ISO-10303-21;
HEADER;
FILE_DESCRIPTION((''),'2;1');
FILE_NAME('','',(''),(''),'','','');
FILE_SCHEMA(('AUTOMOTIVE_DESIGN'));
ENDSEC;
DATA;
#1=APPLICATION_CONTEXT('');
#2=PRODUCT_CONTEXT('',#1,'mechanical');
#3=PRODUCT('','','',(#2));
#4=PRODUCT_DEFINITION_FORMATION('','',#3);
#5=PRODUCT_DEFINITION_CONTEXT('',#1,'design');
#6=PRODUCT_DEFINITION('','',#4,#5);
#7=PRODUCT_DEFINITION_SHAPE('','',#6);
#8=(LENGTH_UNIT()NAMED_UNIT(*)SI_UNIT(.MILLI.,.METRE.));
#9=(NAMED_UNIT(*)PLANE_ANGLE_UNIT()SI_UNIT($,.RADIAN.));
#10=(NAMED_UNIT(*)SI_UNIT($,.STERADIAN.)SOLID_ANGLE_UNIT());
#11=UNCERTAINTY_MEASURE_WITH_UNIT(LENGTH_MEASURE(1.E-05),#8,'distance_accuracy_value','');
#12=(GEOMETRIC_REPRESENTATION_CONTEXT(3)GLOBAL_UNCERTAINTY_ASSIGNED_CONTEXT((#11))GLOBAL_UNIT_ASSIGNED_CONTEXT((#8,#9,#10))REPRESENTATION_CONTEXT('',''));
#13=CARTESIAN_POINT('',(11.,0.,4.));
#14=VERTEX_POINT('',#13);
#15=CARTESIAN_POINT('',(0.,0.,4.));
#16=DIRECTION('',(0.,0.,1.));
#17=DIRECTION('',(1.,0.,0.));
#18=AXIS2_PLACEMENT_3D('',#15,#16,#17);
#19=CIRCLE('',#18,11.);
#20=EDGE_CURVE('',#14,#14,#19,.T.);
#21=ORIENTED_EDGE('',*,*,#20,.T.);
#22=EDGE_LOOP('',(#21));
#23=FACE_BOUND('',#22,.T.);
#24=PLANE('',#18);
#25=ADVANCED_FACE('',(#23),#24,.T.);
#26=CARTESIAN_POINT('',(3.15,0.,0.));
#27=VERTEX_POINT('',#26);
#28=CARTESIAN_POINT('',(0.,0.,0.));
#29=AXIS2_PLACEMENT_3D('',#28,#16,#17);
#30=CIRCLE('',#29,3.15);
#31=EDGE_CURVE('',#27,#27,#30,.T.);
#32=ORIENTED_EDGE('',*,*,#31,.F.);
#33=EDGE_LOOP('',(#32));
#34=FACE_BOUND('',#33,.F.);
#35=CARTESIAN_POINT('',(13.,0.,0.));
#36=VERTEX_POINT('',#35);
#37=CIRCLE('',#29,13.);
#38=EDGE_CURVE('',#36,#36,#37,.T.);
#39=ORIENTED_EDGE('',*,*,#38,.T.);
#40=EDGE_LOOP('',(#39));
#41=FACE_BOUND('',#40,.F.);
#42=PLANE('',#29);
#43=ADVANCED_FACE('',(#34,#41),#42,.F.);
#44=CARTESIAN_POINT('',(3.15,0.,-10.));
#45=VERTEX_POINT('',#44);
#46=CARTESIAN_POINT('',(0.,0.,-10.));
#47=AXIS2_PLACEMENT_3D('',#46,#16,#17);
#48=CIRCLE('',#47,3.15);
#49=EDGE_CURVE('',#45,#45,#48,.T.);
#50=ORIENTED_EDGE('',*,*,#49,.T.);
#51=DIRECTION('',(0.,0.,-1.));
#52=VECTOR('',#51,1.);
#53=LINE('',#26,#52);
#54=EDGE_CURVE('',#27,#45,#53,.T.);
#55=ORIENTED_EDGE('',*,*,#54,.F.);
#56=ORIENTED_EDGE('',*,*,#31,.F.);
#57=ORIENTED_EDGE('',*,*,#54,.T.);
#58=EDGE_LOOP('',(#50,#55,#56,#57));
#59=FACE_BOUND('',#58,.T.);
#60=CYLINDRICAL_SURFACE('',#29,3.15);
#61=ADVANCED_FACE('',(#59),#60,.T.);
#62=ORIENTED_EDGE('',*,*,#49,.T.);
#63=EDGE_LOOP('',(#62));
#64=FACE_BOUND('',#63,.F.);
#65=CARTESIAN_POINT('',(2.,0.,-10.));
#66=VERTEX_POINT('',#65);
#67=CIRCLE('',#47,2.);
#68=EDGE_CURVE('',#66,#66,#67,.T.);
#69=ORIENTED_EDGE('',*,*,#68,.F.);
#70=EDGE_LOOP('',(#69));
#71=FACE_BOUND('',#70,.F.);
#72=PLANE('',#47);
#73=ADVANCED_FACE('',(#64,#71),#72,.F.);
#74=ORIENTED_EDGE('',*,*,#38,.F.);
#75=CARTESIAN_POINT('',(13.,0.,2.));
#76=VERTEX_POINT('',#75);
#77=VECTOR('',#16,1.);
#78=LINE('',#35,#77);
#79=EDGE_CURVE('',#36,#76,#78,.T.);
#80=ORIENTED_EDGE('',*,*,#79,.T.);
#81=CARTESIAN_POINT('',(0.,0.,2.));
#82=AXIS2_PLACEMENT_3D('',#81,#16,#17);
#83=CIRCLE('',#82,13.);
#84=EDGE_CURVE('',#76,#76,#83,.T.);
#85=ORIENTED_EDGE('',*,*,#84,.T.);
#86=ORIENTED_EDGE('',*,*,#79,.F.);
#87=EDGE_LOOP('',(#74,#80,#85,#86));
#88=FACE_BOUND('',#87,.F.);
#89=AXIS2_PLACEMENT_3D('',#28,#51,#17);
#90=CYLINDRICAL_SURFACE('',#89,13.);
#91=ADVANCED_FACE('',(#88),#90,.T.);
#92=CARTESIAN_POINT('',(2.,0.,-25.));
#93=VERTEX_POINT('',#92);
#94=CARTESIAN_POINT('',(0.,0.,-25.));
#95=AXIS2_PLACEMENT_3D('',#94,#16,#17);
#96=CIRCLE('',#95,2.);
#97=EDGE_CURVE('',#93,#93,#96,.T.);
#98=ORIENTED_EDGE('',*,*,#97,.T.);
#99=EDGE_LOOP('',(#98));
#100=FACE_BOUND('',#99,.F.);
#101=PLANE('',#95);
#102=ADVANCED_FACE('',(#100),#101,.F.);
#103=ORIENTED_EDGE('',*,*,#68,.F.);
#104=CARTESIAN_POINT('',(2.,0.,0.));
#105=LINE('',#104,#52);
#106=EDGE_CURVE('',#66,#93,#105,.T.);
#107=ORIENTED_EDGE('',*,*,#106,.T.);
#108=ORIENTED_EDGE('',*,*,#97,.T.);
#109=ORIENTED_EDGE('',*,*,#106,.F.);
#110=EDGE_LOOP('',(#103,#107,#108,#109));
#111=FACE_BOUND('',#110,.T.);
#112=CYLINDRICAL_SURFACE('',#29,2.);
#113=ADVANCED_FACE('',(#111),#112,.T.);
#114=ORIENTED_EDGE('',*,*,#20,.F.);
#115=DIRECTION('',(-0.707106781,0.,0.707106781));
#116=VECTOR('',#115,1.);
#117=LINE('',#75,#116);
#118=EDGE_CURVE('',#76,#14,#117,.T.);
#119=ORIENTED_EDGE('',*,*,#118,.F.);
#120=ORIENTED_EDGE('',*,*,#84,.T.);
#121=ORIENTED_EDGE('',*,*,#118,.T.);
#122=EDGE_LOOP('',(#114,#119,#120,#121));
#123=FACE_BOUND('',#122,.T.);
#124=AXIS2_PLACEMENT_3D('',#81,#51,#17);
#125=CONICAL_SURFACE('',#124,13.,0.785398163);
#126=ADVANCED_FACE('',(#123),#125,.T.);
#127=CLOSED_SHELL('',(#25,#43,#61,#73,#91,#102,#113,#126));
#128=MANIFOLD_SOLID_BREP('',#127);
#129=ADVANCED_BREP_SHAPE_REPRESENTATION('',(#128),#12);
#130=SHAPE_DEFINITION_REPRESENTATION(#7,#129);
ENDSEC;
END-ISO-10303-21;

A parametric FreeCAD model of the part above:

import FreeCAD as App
import Part
import Sketcher
Q = App.Units.Quantity


def edges_at(feature, points):
    """Names of the edges that pass closest to the given points."""
    edges = feature.Shape.Edges
    near = lambda p: min(range(len(edges)), key=lambda i: edges[i].distToShape(Part.Vertex(*p))[0])
    return sorted({f"Edge{near(p) + 1}" for p in points})

doc = App.newDocument("Part")
params = doc.addObject("Spreadsheet::Sheet", "Params")
for row, (alias, value) in enumerate([
    ("sketch1_diameter", "26 mm"),
    ("sketch1_diameter2", "23 mm"),
    ("pad1_length", "4 mm"),
    ("sketch2_diameter", "23 mm"),
    ("pad2_length", "4 mm"),
    ("sketch3_diameter", "6.3 mm"),
    ("pad3_length", "10 mm"),
    ("sketch4_diameter", "4 mm"),
    ("pad4_length", "25 mm"),
    ("chamfer_size", "2 mm"),
], start=1):
    params.set(f"A{row}", alias)
    params.set(f"B{row}", "=" + value)
    params.setAlias(f"B{row}", alias)

body = doc.addObject("PartDesign::Body", "Body")

sketch1 = body.newObject("Sketcher::SketchObject", "Sketch")
sketch1.AttachmentSupport = (doc.getObject("XY_Plane"), [""])
sketch1.MapMode = "FlatFace"
sketch1.addGeometry([
    Part.Circle(App.Vector(0, 0, 0), App.Vector(0, 0, 1), 13),
    Part.Circle(App.Vector(0, 0, 0), App.Vector(0, 0, 1), 11.5),
], False)
sketch1.addConstraint([
    Sketcher.Constraint("Coincident", 0, 3, -1, 1),
    Sketcher.Constraint("Coincident", 1, 3, -1, 1),
    Sketcher.Constraint("Diameter", 0, Q("26 mm")),
    Sketcher.Constraint("Diameter", 1, Q("23 mm")),
])
sketch1.setExpression("Constraints[2]", "Params.sketch1_diameter")
sketch1.setExpression("Constraints[3]", "Params.sketch1_diameter2")
pad1 = body.newObject("PartDesign::Pad", "Pad")
pad1.Profile = sketch1
pad1.setExpression("Length", "Params.pad1_length")

sketch2 = body.newObject("Sketcher::SketchObject", "Sketch001")
sketch2.AttachmentSupport = (doc.getObject("XY_Plane"), [""])
sketch2.MapMode = "FlatFace"
sketch2.addGeometry(Part.Circle(App.Vector(0, 0, 0), App.Vector(0, 0, 1), 11.5), False)
sketch2.addConstraint([
    Sketcher.Constraint("Coincident", 0, 3, -1, 1),
    Sketcher.Constraint("Diameter", 0, Q("23 mm")),
])
sketch2.setExpression("Constraints[1]", "Params.sketch2_diameter")
pad2 = body.newObject("PartDesign::Pad", "Pad001")
pad2.Profile = sketch2
pad2.setExpression("Length", "Params.pad2_length")

sketch3 = body.newObject("Sketcher::SketchObject", "Sketch002")
sketch3.AttachmentSupport = (doc.getObject("XY_Plane"), [""])
sketch3.MapMode = "FlatFace"
sketch3.addGeometry(Part.Circle(App.Vector(0, 0, 0), App.Vector(0, 0, 1), 3.15), False)
sketch3.addConstraint([
    Sketcher.Constraint("Coincident", 0, 3, -1, 1),
    Sketcher.Constraint("Diameter", 0, Q("6.3 mm")),
])
sketch3.setExpression("Constraints[1]", "Params.sketch3_diameter")
pad3 = body.newObject("PartDesign::Pad", "Pad002")
pad3.Profile = sketch3
pad3.setExpression("Length", "Params.pad3_length")
pad3.Reversed = True

sketch4 = body.newObject("Sketcher::SketchObject", "Sketch003")
sketch4.AttachmentSupport = (doc.getObject("XY_Plane"), [""])
sketch4.MapMode = "FlatFace"
sketch4.addGeometry(Part.Circle(App.Vector(0, 0, 0), App.Vector(0, 0, 1), 2), False)
sketch4.addConstraint([
    Sketcher.Constraint("Coincident", 0, 3, -1, 1),
    Sketcher.Constraint("Diameter", 0, Q("4 mm")),
])
sketch4.setExpression("Constraints[1]", "Params.sketch4_diameter")
pad4 = body.newObject("PartDesign::Pad", "Pad003")
pad4.Profile = sketch4
pad4.setExpression("Length", "Params.pad4_length")
pad4.Reversed = True
doc.recompute()

chamfer = body.newObject("PartDesign::Chamfer", "Chamfer")
chamfer.Base = (pad4, edges_at(pad4, [(-13, 0, 4)]))
chamfer.setExpression("Size", "Params.chamfer_size")

doc.recompute()
